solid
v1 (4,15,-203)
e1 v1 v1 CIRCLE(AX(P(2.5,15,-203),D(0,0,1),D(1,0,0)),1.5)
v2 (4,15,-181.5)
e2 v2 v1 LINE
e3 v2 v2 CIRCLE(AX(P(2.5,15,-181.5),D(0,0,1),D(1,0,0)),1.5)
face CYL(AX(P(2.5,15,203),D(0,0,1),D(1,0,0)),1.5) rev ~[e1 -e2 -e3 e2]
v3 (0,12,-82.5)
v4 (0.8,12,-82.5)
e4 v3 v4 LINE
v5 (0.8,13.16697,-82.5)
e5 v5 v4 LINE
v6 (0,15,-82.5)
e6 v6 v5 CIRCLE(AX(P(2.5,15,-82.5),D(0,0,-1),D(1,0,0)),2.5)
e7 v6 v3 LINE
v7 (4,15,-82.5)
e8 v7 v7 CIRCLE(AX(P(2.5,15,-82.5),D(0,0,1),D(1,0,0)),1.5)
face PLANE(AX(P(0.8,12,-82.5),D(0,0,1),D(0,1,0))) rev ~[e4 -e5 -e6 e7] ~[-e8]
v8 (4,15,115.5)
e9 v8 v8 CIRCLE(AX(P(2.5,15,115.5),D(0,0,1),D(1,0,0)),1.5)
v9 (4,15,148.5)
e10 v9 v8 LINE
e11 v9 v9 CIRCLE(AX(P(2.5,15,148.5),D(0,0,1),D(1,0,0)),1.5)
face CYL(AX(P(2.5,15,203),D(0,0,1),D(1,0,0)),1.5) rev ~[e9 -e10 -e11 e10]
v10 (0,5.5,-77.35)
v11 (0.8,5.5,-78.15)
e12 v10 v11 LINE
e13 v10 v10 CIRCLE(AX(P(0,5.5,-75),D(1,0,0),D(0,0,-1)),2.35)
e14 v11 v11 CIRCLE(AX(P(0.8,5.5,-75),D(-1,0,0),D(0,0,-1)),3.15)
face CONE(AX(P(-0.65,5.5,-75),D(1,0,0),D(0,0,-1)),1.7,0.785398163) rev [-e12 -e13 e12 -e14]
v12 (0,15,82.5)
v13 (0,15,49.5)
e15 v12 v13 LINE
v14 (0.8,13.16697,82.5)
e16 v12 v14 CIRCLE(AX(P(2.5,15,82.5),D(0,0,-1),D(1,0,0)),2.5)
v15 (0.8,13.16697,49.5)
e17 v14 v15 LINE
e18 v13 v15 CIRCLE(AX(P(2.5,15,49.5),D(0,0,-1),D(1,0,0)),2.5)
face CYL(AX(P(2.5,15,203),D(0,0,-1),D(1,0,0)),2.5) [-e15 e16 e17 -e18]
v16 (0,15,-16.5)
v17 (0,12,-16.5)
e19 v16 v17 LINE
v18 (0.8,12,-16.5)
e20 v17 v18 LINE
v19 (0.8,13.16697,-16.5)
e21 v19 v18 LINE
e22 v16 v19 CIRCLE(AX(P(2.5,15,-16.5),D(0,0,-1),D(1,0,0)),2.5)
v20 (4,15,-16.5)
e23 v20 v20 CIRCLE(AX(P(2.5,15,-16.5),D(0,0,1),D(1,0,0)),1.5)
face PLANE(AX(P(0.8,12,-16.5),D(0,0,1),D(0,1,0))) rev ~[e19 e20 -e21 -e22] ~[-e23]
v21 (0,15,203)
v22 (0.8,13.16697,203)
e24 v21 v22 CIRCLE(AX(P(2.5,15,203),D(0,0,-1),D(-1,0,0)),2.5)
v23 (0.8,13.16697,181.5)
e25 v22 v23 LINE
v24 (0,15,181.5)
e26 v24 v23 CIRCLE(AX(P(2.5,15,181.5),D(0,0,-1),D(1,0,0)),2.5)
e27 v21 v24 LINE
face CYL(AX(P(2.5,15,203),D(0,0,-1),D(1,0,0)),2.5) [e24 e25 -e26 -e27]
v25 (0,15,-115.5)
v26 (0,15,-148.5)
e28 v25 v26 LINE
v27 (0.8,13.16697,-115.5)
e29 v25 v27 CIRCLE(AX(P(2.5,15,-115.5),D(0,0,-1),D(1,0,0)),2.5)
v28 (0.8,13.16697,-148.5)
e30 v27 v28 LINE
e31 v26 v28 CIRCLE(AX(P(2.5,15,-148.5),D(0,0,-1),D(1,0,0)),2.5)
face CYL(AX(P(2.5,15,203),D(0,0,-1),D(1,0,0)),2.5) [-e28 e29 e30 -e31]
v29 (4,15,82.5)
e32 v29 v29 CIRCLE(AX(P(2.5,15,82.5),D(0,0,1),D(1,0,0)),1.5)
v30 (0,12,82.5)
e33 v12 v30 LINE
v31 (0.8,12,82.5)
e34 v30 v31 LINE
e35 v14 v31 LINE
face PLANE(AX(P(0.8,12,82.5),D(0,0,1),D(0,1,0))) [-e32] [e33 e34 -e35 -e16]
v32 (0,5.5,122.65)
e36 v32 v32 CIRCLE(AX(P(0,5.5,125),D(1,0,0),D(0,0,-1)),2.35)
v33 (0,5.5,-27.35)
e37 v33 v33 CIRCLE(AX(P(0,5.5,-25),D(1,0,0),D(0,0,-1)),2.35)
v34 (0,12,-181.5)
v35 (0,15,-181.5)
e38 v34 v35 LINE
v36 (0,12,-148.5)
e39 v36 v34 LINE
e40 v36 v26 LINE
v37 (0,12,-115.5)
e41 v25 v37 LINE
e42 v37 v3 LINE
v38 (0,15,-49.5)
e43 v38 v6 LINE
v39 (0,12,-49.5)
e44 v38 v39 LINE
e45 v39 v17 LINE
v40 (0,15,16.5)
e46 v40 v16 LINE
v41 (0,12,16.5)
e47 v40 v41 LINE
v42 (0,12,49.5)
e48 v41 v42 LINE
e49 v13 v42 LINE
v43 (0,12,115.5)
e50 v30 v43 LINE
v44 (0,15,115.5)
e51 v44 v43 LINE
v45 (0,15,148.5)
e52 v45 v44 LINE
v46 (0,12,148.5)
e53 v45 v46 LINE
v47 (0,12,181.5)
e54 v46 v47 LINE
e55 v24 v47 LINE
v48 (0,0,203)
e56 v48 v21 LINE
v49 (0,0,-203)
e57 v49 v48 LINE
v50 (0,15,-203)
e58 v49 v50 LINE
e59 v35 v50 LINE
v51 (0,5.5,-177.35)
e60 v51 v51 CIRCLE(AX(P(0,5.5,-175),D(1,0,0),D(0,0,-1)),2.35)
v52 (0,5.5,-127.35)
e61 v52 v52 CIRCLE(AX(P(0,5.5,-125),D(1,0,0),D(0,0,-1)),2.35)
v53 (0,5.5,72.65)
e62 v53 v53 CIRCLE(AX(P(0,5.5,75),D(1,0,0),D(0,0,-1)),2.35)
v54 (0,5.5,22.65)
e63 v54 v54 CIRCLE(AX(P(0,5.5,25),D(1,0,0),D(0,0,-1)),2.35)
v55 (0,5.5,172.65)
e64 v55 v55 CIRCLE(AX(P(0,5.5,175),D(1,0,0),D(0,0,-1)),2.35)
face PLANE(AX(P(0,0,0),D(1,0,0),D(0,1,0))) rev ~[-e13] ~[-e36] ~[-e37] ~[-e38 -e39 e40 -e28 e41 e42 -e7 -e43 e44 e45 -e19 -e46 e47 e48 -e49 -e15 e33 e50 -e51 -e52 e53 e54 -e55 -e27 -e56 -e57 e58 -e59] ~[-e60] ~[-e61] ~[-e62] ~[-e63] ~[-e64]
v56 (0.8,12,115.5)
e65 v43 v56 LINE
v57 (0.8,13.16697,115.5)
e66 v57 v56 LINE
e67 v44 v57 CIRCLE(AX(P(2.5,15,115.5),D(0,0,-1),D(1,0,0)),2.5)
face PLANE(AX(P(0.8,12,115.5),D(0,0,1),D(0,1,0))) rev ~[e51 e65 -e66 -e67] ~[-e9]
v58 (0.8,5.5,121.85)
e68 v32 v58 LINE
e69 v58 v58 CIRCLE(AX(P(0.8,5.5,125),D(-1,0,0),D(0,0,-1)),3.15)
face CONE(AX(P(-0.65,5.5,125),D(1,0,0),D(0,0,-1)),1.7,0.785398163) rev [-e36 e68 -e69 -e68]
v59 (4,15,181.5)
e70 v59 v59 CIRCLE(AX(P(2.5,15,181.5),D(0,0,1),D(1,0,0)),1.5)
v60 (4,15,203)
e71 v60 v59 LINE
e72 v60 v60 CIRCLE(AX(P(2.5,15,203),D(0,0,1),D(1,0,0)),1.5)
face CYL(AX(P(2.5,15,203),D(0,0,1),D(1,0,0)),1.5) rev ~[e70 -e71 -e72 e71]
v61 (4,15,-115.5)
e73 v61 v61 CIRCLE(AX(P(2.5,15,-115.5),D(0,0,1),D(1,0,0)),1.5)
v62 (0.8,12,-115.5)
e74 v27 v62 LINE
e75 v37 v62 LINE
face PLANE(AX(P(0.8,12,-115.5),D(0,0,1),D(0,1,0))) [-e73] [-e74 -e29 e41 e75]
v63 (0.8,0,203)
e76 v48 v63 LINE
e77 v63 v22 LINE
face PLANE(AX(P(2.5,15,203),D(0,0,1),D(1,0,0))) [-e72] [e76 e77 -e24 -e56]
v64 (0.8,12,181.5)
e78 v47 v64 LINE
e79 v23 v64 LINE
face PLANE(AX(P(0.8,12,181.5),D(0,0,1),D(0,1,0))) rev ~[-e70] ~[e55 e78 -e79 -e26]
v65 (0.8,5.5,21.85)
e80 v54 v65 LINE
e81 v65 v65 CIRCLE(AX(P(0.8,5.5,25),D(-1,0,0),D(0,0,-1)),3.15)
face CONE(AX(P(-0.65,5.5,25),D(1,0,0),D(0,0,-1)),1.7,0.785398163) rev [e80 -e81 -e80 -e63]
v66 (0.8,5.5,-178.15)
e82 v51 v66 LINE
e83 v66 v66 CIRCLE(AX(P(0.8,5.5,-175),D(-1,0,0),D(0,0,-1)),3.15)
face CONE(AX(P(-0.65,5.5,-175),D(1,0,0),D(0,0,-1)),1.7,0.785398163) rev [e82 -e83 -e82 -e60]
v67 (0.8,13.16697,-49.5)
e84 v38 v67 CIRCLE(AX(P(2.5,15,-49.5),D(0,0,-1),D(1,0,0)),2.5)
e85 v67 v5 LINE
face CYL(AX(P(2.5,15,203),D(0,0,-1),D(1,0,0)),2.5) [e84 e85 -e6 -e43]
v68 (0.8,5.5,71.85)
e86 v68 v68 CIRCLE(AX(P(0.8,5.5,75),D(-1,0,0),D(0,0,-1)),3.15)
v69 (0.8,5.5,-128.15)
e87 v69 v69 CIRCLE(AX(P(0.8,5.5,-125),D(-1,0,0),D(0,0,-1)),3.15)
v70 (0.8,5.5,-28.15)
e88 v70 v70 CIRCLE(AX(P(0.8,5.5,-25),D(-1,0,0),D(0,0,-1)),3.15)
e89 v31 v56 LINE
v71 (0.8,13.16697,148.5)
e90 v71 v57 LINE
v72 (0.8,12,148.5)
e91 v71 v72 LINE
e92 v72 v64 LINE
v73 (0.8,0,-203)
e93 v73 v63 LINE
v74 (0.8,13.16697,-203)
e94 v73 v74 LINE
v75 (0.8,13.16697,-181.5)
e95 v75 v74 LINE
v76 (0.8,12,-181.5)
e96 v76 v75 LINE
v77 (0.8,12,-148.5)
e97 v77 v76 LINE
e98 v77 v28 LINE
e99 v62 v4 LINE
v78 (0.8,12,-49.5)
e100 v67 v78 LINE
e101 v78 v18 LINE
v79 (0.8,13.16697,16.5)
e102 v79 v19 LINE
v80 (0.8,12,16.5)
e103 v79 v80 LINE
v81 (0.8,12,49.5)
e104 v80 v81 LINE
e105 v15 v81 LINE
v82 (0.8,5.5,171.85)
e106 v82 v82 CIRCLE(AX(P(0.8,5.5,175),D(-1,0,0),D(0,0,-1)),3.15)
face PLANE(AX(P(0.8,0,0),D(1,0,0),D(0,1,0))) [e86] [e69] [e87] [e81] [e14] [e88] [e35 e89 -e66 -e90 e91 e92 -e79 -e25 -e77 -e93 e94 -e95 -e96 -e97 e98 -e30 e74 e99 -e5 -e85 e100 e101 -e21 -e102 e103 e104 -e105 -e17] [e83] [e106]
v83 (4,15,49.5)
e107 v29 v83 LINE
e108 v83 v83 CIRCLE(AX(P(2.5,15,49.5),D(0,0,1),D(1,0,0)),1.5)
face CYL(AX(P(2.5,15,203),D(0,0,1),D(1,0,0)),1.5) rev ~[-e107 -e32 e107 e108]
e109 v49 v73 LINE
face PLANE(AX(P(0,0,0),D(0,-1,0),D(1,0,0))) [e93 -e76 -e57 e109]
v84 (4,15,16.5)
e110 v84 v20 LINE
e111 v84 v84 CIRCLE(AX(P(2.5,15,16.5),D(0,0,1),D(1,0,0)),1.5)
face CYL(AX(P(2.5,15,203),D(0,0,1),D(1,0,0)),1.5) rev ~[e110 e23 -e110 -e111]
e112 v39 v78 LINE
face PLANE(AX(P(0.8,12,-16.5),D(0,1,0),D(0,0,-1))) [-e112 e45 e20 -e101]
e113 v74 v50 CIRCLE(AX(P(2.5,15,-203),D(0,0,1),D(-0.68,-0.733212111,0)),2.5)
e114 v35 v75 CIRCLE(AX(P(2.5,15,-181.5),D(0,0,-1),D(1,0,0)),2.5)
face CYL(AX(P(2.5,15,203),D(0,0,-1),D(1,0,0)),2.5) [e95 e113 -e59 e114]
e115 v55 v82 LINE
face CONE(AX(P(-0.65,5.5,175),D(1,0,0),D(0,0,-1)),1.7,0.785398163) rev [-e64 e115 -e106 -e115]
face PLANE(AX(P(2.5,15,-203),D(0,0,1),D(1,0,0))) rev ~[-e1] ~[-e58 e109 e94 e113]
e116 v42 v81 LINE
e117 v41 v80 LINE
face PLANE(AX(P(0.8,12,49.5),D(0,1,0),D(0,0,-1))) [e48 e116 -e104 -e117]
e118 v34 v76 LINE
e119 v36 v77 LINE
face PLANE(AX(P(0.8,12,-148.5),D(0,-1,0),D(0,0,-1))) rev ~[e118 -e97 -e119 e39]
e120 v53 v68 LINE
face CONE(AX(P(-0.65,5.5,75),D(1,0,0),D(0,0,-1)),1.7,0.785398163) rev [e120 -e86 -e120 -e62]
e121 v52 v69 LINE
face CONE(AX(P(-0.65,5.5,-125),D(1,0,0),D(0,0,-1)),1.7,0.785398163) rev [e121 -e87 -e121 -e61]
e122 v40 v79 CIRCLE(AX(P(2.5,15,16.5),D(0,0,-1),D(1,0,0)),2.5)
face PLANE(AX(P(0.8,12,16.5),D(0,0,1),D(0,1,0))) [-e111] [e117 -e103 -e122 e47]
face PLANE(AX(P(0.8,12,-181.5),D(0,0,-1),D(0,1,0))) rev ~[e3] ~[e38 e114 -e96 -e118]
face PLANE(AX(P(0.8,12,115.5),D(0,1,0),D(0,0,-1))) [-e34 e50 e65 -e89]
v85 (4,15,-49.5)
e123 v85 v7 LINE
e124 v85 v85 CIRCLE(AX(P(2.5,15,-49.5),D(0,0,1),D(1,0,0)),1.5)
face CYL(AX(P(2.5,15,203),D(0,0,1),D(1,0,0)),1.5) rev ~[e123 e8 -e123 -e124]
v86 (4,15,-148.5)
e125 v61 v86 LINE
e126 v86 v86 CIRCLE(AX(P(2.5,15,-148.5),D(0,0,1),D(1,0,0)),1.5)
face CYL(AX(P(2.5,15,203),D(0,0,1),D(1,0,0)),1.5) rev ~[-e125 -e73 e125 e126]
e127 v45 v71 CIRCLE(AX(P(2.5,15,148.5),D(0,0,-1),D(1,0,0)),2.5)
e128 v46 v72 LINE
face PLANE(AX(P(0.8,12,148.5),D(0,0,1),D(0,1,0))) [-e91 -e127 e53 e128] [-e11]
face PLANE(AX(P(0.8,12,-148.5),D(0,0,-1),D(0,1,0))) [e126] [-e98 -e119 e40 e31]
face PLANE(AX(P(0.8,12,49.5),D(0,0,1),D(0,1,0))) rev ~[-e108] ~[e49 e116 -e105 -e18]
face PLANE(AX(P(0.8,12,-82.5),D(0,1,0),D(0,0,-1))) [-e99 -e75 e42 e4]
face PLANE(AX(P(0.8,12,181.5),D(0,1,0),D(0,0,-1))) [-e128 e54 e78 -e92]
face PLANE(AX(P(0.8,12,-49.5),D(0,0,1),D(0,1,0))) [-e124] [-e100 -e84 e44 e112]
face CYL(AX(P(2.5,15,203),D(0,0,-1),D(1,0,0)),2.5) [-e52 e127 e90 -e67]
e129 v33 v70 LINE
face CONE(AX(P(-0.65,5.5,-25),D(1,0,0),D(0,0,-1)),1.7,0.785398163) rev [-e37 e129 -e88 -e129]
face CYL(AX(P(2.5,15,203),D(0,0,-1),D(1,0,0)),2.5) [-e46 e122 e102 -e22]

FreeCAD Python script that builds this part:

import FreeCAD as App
import Part
import Sketcher

V = App.Vector
Q = App.Units.Quantity


def add_polygon(sketch, points):
    """Adds a closed chain of lines whose ends are joined by coincident constraints."""
    first, n = sketch.GeometryCount, len(points)
    for a, b in zip(points, points[1:] + points[:1]):
        sketch.addGeometry(Part.LineSegment(App.Vector(*a, 0), App.Vector(*b, 0)), False)
    for i in range(n):
        sketch.addConstraint(Sketcher.Constraint("Coincident", first + i, 2, first + (i + 1) % n, 1))

doc = App.newDocument("Part")
body = doc.addObject("PartDesign::Body", "Body")

# Sketch on XY plane
sketch1 = doc.addObject("Sketcher::SketchObject", "Sketch")
body.addObject(sketch1)
sketch1.AttachmentSupport = (doc.XY_Plane, [""])
sketch1.MapMode = "FlatFace"
add_polygon(sketch1, [(0, 15), (0, 0), (0.8, 0), (0.8, 15)])  # lines 0-3
sketch1.addConstraint(Sketcher.Constraint("Vertical", 0))
sketch1.addConstraint(Sketcher.Constraint("Horizontal", 1))
sketch1.addConstraint(Sketcher.Constraint("Vertical", 2))
sketch1.addConstraint(Sketcher.Constraint("Horizontal", 3))
sketch1.addConstraint(Sketcher.Constraint("Coincident", 0, 2, -1, 1))
sketch1.addConstraint(Sketcher.Constraint("DistanceY", 0, 2, 0, 1, Q("15 mm")))
sketch1.addConstraint(Sketcher.Constraint("DistanceX", 1, 1, 1, 2, Q("0.8 mm")))
pad1 = doc.addObject("PartDesign::Pad", "Pad")
body.addObject(pad1)
pad1.Profile = sketch1
pad1.Length = 406
pad1.Midplane = True

# Sketch on XY plane
sketch2 = doc.addObject("Sketcher::SketchObject", "Sketch001")
body.addObject(sketch2)
sketch2.AttachmentSupport = (doc.XY_Plane, [""])
sketch2.MapMode = "FlatFace"
sketch2.AttachmentOffset = App.Placement(V(0, 0, 203), App.Rotation())
sketch2.addGeometry(Part.Circle(V(2.5, 15, 0), V(0, 0, 1), 2.5), False)
sketch2.addConstraint(Sketcher.Constraint("Diameter", 0, Q("5 mm")))
sketch2.addConstraint(Sketcher.Constraint("DistanceY", -1, 1, 0, 3, Q("15 mm")))
sketch2.addConstraint(Sketcher.Constraint("DistanceX", -1, 1, 0, 3, Q("2.5 mm")))

# Sketch on XZ plane
sketch3 = doc.addObject("Sketcher::SketchObject", "Sketch002")
body.addObject(sketch3)
sketch3.AttachmentSupport = (doc.XZ_Plane, [""])
sketch3.MapMode = "FlatFace"
sketch3.AttachmentOffset = App.Placement(V(0, 0, -15), App.Rotation())
sketch3.addGeometry(Part.LineSegment(V(1, 203, 0), V(1, -203, 0)), False)
sketch3.addConstraint(Sketcher.Constraint("Vertical", 0))
sketch3.addConstraint(Sketcher.Constraint("DistanceY", 0, 2, 0, 1, Q("406 mm")))
sketch3.addConstraint(Sketcher.Constraint("DistanceY", -1, 1, 0, 1, Q("203 mm")))
sketch3.addConstraint(Sketcher.Constraint("DistanceX", -1, 1, 0, 1, Q("0.8 mm")))
doc.recompute()

additivepipe = doc.addObject("PartDesign::AdditivePipe", "AdditivePipe")
body.addObject(additivepipe)
additivepipe.Profile = sketch2
additivepipe.Spine = (sketch3, ["Edge1"])

# Sketch on XY plane
sketch4 = doc.addObject("Sketcher::SketchObject", "Sketch003")
body.addObject(sketch4)
sketch4.AttachmentSupport = (doc.XY_Plane, [""])
sketch4.MapMode = "FlatFace"
sketch4.AttachmentOffset = App.Placement(V(0, 0, 203), App.Rotation())
sketch4.addGeometry(Part.Circle(V(2.5, 15, 0), V(0, 0, 1), 1.5), False)
sketch4.addConstraint(Sketcher.Constraint("Diameter", 0, Q("3 mm")))
sketch4.addConstraint(Sketcher.Constraint("DistanceY", -1, 1, 0, 3, Q("15 mm")))
sketch4.addConstraint(Sketcher.Constraint("DistanceX", -1, 1, 0, 3, Q("2.5 mm")))
pocket1 = doc.addObject("PartDesign::Pocket", "Pocket")
body.addObject(pocket1)
pocket1.Profile = sketch4
pocket1.Type = "ThroughAll"

# Sketch on YZ plane
sketch5 = doc.addObject("Sketcher::SketchObject", "Sketch004")
body.addObject(sketch5)
sketch5.AttachmentSupport = (doc.YZ_Plane, [""])
sketch5.MapMode = "FlatFace"
sketch5.AttachmentOffset = App.Placement(V(0, 0, 0.8), App.Rotation())
add_polygon(sketch5, [(18, 182), (12, 182), (12, 148), (18, 148)])  # lines 0-3
add_polygon(sketch5, [(18, 116), (12, 116), (12, 82), (18, 82)])  # lines 4-7
add_polygon(sketch5, [(18, 50), (12, 50), (12, 16), (18, 16)])  # lines 8-11
add_polygon(sketch5, [(18, -16), (12, -16), (12, -50), (18, -50)])  # lines 12-15
add_polygon(sketch5, [(18, -82), (12, -82), (12, -116), (18, -116)])  # lines 16-19
add_polygon(sketch5, [(18, -148), (12, -148), (12, -182), (18, -182)])  # lines 20-23
sketch5.addConstraint(Sketcher.Constraint("Horizontal", 0))
sketch5.addConstraint(Sketcher.Constraint("Vertical", 1))
sketch5.addConstraint(Sketcher.Constraint("Horizontal", 2))
sketch5.addConstraint(Sketcher.Constraint("Vertical", 3))
sketch5.addConstraint(Sketcher.Constraint("Horizontal", 4))
sketch5.addConstraint(Sketcher.Constraint("Vertical", 5))
sketch5.addConstraint(Sketcher.Constraint("Horizontal", 6))
sketch5.addConstraint(Sketcher.Constraint("Vertical", 7))
sketch5.addConstraint(Sketcher.Constraint("Horizontal", 8))
sketch5.addConstraint(Sketcher.Constraint("Vertical", 9))
sketch5.addConstraint(Sketcher.Constraint("Horizontal", 10))
sketch5.addConstraint(Sketcher.Constraint("Vertical", 11))
sketch5.addConstraint(Sketcher.Constraint("Horizontal", 12))
sketch5.addConstraint(Sketcher.Constraint("Vertical", 13))
sketch5.addConstraint(Sketcher.Constraint("Horizontal", 14))
sketch5.addConstraint(Sketcher.Constraint("Vertical", 15))
sketch5.addConstraint(Sketcher.Constraint("Horizontal", 16))
sketch5.addConstraint(Sketcher.Constraint("Vertical", 17))
sketch5.addConstraint(Sketcher.Constraint("Horizontal", 18))
sketch5.addConstraint(Sketcher.Constraint("Vertical", 19))
sketch5.addConstraint(Sketcher.Constraint("Horizontal", 20))
sketch5.addConstraint(Sketcher.Constraint("Vertical", 21))
sketch5.addConstraint(Sketcher.Constraint("Horizontal", 22))
sketch5.addConstraint(Sketcher.Constraint("Vertical", 23))
sketch5.addConstraint(Sketcher.Constraint("Symmetric", 9, 2, 12, 2, -1))
sketch5.addConstraint(Sketcher.Constraint("Symmetric", 11, 2, 14, 2, -1))
sketch5.addConstraint(Sketcher.Constraint("Symmetric", 5, 2, 16, 2, -1))
sketch5.addConstraint(Sketcher.Constraint("Symmetric", 7, 2, 18, 2, -1))
sketch5.addConstraint(Sketcher.Constraint("Symmetric", 1, 2, 20, 2, -1))
sketch5.addConstraint(Sketcher.Constraint("Symmetric", 3, 2, 22, 2, -1))
sketch5.addConstraint(Sketcher.Constraint("Vertical", 1, 2, 4, 2))
sketch5.addConstraint(Sketcher.Constraint("Vertical", 3, 2, 6, 2))
sketch5.addConstraint(Sketcher.Constraint("Vertical", 5, 2, 8, 2))
sketch5.addConstraint(Sketcher.Constraint("Vertical", 7, 2, 10, 2))
sketch5.addConstraint(Sketcher.Constraint("Equal", 3, 5))
sketch5.addConstraint(Sketcher.Constraint("Equal", 7, 9))
sketch5.addConstraint(Sketcher.Constraint("DistanceX", 0, 2, 0, 1, Q("6 mm")))
sketch5.addConstraint(Sketcher.Constraint("DistanceY", 1, 2, 1, 1, Q("33 mm")))
sketch5.addConstraint(Sketcher.Constraint("DistanceX", -1, 1, 0, 2, Q("12 mm")))
sketch5.addConstraint(Sketcher.Constraint("DistanceY", 4, 2, 1, 2, Q("33 mm")))
sketch5.addConstraint(Sketcher.Constraint("DistanceY", 8, 2, 5, 2, Q("33 mm")))
sketch5.addConstraint(Sketcher.Constraint("DistanceY", 12, 2, 9, 2, Q("33 mm")))
pocket2 = doc.addObject("PartDesign::Pocket", "Pocket001")
body.addObject(pocket2)
pocket2.Profile = sketch5
pocket2.Length = 120
pocket2.Midplane = True

# Sketch on XZ plane
sketch6 = doc.addObject("Sketcher::SketchObject", "Sketch005")
body.addObject(sketch6)
sketch6.AttachmentSupport = (doc.XZ_Plane, [""])
sketch6.MapMode = "FlatFace"
sketch6.AttachmentOffset = App.Placement(V(0, 0, -5.5), App.Rotation())
add_polygon(sketch6, [(0, -175), (0.8, -175), (0.8, -178.2), (-0.7, -176.7), (0, -176.7)])  # lines 0-4
sketch6.addGeometry(Part.LineSegment(V(0.8, -175, 0), V(-0.7, -175, 0)), True)  # axis
sketch6.addConstraint(Sketcher.Constraint("Horizontal", 0))
sketch6.addConstraint(Sketcher.Constraint("Vertical", 1))
sketch6.addConstraint(Sketcher.Constraint("Horizontal", 3))
sketch6.addConstraint(Sketcher.Constraint("Vertical", 4))
sketch6.addConstraint(Sketcher.Constraint("Horizontal", 5))
sketch6.addConstraint(Sketcher.Constraint("Coincident", 5, 1, 0, 2))
sketch6.addConstraint(Sketcher.Constraint("PointOnObject", 3, 2, -2))
sketch6.addConstraint(Sketcher.Constraint("Vertical", 2, 2, 5, 2))
sketch6.addConstraint(Sketcher.Constraint("Angle", 2, Q("135 deg")))
sketch6.addConstraint(Sketcher.Constraint("DistanceX", 0, 1, 0, 2, Q("0.8 mm")))
sketch6.addConstraint(Sketcher.Constraint("DistanceY", 4, 1, 4, 2, Q("1.7 mm")))
sketch6.addConstraint(Sketcher.Constraint("DistanceY", 0, 2, -1, 1, Q("175 mm")))
sketch6.addConstraint(Sketcher.Constraint("DistanceX", 3, 1, 3, 2, Q("0.65 mm")))
groove = doc.addObject("PartDesign::Groove", "Groove")
body.addObject(groove)
groove.Profile = sketch6
groove.ReferenceAxis = (sketch6, ["Axis0"])
groove.Angle = 360
doc.recompute()

linearpattern = doc.addObject("PartDesign::LinearPattern", "LinearPattern")
body.addObject(linearpattern)
linearpattern.Originals = [groove]
linearpattern.Direction = (doc.Z_Axis, [""])
linearpattern.Mode = "offset"
linearpattern.Offset = 50
linearpattern.Occurrences = 8
body.Tip = linearpattern

doc.recompute()
